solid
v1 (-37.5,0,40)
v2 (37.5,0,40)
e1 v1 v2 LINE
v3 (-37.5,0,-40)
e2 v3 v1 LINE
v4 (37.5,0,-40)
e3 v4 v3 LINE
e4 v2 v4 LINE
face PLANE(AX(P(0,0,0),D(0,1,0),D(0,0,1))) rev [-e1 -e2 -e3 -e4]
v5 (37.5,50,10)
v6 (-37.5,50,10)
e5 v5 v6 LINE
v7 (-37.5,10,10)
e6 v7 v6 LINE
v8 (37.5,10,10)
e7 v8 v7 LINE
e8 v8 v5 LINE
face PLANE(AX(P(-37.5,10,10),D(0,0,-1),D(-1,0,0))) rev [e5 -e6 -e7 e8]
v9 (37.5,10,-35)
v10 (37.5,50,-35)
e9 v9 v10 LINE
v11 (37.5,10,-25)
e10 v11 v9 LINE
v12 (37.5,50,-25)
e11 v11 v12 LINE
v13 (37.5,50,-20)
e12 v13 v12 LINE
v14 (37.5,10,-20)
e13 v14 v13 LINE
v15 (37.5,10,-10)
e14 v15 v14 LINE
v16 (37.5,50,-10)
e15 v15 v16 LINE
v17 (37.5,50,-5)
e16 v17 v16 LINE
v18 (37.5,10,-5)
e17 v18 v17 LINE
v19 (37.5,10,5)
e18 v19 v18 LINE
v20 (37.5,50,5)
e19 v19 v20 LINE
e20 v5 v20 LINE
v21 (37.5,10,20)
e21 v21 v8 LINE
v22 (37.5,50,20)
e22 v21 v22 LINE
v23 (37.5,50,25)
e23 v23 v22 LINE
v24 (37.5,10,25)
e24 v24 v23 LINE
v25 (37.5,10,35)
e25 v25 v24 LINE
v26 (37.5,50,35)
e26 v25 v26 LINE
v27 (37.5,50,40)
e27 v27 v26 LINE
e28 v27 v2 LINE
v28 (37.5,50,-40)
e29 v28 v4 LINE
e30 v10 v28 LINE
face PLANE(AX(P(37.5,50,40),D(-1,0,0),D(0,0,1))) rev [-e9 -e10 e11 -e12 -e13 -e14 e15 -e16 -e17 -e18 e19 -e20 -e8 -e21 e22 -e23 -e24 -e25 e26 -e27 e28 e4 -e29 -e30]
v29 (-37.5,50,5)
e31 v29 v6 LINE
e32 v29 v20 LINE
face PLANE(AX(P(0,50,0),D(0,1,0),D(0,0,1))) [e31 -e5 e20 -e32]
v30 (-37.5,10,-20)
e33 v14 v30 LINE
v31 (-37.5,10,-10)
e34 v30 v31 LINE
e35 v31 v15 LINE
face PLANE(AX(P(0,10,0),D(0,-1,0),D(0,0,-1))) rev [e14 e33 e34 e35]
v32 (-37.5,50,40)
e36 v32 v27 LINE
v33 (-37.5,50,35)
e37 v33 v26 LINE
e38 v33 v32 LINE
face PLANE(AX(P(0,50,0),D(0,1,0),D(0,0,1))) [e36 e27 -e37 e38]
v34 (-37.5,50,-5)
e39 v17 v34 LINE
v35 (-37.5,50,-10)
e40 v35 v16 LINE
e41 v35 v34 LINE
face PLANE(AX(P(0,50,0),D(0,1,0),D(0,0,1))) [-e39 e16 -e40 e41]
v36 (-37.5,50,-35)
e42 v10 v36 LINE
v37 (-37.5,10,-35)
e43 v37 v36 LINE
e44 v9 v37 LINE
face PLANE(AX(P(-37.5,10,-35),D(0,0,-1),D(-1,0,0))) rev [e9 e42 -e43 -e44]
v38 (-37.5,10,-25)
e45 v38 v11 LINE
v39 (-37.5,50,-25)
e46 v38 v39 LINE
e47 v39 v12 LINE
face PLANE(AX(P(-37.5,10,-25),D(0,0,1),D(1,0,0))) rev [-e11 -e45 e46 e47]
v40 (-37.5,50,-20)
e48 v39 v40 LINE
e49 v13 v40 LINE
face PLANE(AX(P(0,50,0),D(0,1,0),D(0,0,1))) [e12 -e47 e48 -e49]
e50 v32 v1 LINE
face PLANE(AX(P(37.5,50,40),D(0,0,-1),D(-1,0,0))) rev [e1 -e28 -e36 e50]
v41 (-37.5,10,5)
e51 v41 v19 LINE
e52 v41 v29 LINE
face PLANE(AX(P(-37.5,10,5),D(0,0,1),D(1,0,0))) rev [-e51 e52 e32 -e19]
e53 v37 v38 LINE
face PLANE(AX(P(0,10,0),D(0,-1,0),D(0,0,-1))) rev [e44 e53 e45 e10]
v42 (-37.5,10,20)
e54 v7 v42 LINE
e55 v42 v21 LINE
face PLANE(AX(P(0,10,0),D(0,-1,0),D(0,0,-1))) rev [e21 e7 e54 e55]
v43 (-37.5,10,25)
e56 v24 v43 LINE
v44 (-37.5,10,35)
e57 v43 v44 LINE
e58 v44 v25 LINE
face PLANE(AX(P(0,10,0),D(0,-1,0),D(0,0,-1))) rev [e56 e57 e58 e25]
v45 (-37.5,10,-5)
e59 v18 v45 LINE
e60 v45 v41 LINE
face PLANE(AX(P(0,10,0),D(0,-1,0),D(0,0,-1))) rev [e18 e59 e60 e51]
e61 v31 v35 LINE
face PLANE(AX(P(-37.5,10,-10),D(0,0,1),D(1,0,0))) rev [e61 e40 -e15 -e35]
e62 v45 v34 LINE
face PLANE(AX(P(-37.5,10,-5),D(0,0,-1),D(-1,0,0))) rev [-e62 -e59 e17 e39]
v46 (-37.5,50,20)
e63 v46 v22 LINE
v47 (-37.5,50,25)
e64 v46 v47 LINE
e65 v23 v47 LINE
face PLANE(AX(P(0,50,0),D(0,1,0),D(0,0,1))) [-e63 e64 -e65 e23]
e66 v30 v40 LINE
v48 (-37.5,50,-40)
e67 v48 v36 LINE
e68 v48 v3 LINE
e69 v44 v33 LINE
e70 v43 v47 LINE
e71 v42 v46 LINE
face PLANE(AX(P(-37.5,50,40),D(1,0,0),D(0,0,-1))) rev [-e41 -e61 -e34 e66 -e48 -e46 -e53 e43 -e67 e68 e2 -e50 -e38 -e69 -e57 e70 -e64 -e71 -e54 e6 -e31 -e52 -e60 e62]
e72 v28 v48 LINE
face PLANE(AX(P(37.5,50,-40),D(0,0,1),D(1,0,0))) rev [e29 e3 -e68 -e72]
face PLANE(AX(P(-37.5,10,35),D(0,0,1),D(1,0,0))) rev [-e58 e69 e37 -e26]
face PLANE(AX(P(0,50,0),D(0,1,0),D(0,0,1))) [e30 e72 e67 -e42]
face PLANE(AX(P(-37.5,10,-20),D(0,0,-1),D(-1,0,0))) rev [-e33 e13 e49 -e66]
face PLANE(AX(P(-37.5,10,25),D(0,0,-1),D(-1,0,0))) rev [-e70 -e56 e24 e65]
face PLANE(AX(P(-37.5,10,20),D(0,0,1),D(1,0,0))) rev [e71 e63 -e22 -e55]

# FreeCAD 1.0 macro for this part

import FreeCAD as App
import Part
import Sketcher
from FreeCAD import Vector
Q = App.Units.Quantity


def add_polygon(sketch, points):
    """Adds a closed chain of lines whose ends are joined by coincident constraints."""
    first, n = sketch.GeometryCount, len(points)
    for a, b in zip(points, points[1:] + points[:1]):
        sketch.addGeometry(Part.LineSegment(App.Vector(*a, 0), App.Vector(*b, 0)), False)
    for i in range(n):
        sketch.addConstraint(Sketcher.Constraint("Coincident", first + i, 2, first + (i + 1) % n, 1))

doc = App.newDocument("Part")
body = doc.addObject("PartDesign::Body", "Body")

# Sketch on XZ plane
sketch1 = doc.addObject("Sketcher::SketchObject", "Sketch")
body.addObject(sketch1)
sketch1.AttachmentSupport = (doc.XZ_Plane, [""])
sketch1.MapMode = "FlatFace"
add_polygon(sketch1, [(-38, -40), (-38, 40), (38, 40), (38, -40)])  # lines 0-3
sketch1.addConstraint(Sketcher.Constraint("Vertical", 0))
sketch1.addConstraint(Sketcher.Constraint("Horizontal", 1))
sketch1.addConstraint(Sketcher.Constraint("Vertical", 2))
sketch1.addConstraint(Sketcher.Constraint("Horizontal", 3))
sketch1.addConstraint(Sketcher.Constraint("Symmetric", 0, 2, 2, 2, -1, 1))
sketch1.addConstraint(Sketcher.Constraint("DistanceX", 1, 1, 1, 2, Q("75 mm")))
sketch1.addConstraint(Sketcher.Constraint("DistanceY", 0, 1, 0, 2, Q("80 mm")))
pad1 = doc.addObject("PartDesign::Pad", "Pad")
body.addObject(pad1)
pad1.Profile = sketch1
pad1.Length = 50
pad1.Reversed = True

# Sketch on XZ plane
sketch2 = doc.addObject("Sketcher::SketchObject", "Sketch001")
body.addObject(sketch2)
sketch2.AttachmentSupport = (doc.XZ_Plane, [""])
sketch2.MapMode = "FlatFace"
sketch2.AttachmentOffset = App.Placement(Vector(0, 0, -50), App.Rotation())
add_polygon(sketch2, [(-38, -35), (-38, -25), (38, -25), (38, -35)])  # lines 0-3
add_polygon(sketch2, [(-38, -20), (-38, -10), (38, -10), (38, -20)])  # lines 4-7
add_polygon(sketch2, [(-38, -5), (-38, 5), (38, 5), (38, -5)])  # lines 8-11
add_polygon(sketch2, [(-38, 10), (-38, 20), (38, 20), (38, 10)])  # lines 12-15
add_polygon(sketch2, [(-38, 25), (-38, 35), (38, 35), (38, 25)])  # lines 16-19
sketch2.addConstraint(Sketcher.Constraint("Vertical", 0))
sketch2.addConstraint(Sketcher.Constraint("Horizontal", 1))
sketch2.addConstraint(Sketcher.Constraint("Vertical", 2))
sketch2.addConstraint(Sketcher.Constraint("Horizontal", 3))
sketch2.addConstraint(Sketcher.Constraint("Vertical", 4))
sketch2.addConstraint(Sketcher.Constraint("Horizontal", 5))
sketch2.addConstraint(Sketcher.Constraint("Vertical", 6))
sketch2.addConstraint(Sketcher.Constraint("Horizontal", 7))
sketch2.addConstraint(Sketcher.Constraint("Vertical", 8))
sketch2.addConstraint(Sketcher.Constraint("Horizontal", 9))
sketch2.addConstraint(Sketcher.Constraint("Vertical", 10))
sketch2.addConstraint(Sketcher.Constraint("Horizontal", 11))
sketch2.addConstraint(Sketcher.Constraint("Vertical", 12))
sketch2.addConstraint(Sketcher.Constraint("Horizontal", 13))
sketch2.addConstraint(Sketcher.Constraint("Vertical", 14))
sketch2.addConstraint(Sketcher.Constraint("Horizontal", 15))
sketch2.addConstraint(Sketcher.Constraint("Vertical", 16))
sketch2.addConstraint(Sketcher.Constraint("Horizontal", 17))
sketch2.addConstraint(Sketcher.Constraint("Vertical", 18))
sketch2.addConstraint(Sketcher.Constraint("Horizontal", 19))
sketch2.addConstraint(Sketcher.Constraint("Symmetric", 8, 2, 10, 2, -1, 1))
sketch2.addConstraint(Sketcher.Constraint("Symmetric", 6, 2, 12, 2, -1, 1))
sketch2.addConstraint(Sketcher.Constraint("Symmetric", 4, 2, 14, 2, -1, 1))
sketch2.addConstraint(Sketcher.Constraint("Symmetric", 2, 2, 16, 2, -1, 1))
sketch2.addConstraint(Sketcher.Constraint("Symmetric", 0, 2, 18, 2, -1, 1))
sketch2.addConstraint(Sketcher.Constraint("Vertical", 3, 2, 4, 2))
sketch2.addConstraint(Sketcher.Constraint("Vertical", 2, 2, 5, 2))
sketch2.addConstraint(Sketcher.Constraint("Vertical", 7, 2, 8, 2))
sketch2.addConstraint(Sketcher.Constraint("Vertical", 6, 2, 9, 2))
sketch2.addConstraint(Sketcher.Constraint("Equal", 2, 4))
sketch2.addConstraint(Sketcher.Constraint("Equal", 6, 8))
sketch2.addConstraint(Sketcher.Constraint("DistanceX", 1, 1, 1, 2, Q("75 mm")))
sketch2.addConstraint(Sketcher.Constraint("DistanceY", 0, 1, 0, 2, Q("10 mm")))
sketch2.addConstraint(Sketcher.Constraint("DistanceY", 0, 2, -1, 1, Q("25 mm")))
sketch2.addConstraint(Sketcher.Constraint("DistanceY", 4, 2, -1, 1, Q("10 mm")))
pocket1 = doc.addObject("PartDesign::Pocket", "Pocket")
body.addObject(pocket1)
pocket1.Profile = sketch2
pocket1.Length = 40
pocket1.Reversed = True

doc.recompute()
